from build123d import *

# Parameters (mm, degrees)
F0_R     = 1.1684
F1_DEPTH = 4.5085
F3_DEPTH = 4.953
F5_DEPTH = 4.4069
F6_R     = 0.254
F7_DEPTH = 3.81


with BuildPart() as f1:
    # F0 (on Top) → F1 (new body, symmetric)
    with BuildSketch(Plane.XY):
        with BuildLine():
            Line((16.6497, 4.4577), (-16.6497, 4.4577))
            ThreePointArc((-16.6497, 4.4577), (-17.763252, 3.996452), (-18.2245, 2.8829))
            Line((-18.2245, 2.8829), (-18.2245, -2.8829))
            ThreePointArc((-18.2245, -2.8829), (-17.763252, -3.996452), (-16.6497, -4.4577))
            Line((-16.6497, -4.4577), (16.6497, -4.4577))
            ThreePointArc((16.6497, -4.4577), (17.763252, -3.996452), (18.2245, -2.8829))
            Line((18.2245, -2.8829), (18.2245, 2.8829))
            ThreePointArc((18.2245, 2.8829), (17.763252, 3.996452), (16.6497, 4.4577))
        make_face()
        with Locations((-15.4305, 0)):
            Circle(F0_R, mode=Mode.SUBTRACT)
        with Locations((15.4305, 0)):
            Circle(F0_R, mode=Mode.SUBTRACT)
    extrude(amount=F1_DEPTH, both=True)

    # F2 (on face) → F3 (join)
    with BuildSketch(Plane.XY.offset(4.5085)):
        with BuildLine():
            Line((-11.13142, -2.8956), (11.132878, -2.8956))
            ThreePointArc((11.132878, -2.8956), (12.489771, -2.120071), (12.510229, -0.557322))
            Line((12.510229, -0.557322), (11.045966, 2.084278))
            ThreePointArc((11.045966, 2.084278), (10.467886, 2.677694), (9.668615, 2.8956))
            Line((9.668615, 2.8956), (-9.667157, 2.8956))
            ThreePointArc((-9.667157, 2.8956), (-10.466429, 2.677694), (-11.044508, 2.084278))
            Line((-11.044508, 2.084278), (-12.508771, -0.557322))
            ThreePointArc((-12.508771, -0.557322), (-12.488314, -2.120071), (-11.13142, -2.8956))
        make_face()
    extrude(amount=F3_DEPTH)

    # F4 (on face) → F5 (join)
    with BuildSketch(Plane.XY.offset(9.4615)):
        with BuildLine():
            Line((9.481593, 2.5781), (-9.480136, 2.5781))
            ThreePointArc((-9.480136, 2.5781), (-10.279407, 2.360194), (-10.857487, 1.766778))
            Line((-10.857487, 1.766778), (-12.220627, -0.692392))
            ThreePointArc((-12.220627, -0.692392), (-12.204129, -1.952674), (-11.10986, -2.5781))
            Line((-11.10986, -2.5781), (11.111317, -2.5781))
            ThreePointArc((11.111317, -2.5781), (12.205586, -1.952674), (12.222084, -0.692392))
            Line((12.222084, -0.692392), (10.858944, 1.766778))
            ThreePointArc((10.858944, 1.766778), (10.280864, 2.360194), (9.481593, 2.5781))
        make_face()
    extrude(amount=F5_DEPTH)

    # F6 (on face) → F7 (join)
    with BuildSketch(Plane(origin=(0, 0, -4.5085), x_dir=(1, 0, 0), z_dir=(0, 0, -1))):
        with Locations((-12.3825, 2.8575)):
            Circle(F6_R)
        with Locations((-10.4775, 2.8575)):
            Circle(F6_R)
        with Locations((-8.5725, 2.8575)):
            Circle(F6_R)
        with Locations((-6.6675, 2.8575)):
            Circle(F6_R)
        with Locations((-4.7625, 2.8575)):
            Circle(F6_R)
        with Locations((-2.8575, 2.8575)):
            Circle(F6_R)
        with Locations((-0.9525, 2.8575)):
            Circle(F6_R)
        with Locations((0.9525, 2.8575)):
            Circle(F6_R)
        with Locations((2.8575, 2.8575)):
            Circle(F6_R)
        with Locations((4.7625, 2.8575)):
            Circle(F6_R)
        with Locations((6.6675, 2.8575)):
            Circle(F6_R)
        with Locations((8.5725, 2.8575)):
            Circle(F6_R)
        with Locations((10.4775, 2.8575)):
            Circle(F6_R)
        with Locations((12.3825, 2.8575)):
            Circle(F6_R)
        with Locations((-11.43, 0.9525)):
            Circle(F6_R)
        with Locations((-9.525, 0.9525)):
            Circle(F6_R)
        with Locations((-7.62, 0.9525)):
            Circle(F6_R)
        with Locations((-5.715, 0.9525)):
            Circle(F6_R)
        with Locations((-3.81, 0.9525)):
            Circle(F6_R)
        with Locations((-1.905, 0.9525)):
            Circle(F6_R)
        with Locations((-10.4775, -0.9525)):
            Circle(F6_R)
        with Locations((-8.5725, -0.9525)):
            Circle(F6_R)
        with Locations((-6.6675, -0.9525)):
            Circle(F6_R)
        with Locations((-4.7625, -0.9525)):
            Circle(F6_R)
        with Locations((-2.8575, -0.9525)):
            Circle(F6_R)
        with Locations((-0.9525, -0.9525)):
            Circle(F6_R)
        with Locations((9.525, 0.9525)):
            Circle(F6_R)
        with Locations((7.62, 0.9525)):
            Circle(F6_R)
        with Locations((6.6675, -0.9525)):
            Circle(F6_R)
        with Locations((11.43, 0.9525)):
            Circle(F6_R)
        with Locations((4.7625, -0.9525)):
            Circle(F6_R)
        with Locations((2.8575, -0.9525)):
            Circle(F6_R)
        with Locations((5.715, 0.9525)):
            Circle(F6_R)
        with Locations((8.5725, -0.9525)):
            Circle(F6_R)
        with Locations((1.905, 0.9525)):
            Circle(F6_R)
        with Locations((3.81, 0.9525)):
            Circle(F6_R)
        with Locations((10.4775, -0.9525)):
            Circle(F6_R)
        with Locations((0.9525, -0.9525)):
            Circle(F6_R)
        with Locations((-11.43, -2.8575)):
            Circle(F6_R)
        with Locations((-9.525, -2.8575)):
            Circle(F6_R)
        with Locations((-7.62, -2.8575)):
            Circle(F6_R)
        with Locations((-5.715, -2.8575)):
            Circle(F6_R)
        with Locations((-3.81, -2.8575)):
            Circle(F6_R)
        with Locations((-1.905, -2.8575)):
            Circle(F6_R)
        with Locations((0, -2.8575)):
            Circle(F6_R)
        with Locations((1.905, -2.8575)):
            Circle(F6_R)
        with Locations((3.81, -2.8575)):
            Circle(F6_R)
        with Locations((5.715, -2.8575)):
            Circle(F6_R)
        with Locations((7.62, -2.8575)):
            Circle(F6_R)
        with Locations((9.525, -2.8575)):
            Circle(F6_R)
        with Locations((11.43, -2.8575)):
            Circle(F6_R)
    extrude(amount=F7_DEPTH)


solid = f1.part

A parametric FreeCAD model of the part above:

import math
import FreeCAD as App
import Part
import Sketcher
from FreeCAD import Vector
Q = App.Units.Quantity

doc = App.newDocument("Part")
params = doc.addObject("Spreadsheet::Sheet", "Params")
for row, (alias, value) in enumerate([
    ("sketch1_diameter", "0.092 in"),
    ("sketch1_radius", "0.062 in"),
    ("sketch1_width", "1.311 in"),
    ("sketch1_height", "0.227 in"),
    ("pad1_length", "0.355 in"),
    ("sketch2_radius", "0.062 in"),
    ("pad2_length", "0.195 in"),
    ("sketch3_radius", "0.05 in"),
    ("sketch3_radius2", "0.0619999 in"),
    ("pad3_length", "0.1735 in"),
    ("sketch4_diameter", "0.02 in"),
    ("pad4_length", "0.15 in"),
], start=1):
    params.set(f"A{row}", alias)
    params.set(f"B{row}", "=" + value)
    params.setAlias(f"B{row}", alias)

body = doc.addObject("PartDesign::Body", "Body")

# Sketch on XY plane
sketch1 = body.newObject("Sketcher::SketchObject", "Sketch")
sketch1.AttachmentSupport = (doc.getObject("XY_Plane"), [""])
sketch1.MapMode = "FlatFace"
sketch1.addGeometry([
    Part.LineSegment(Vector(16.6497, 4.4577, 0), Vector(-16.6497, 4.4577, 0)),  # 0
    Part.ArcOfCircle(Part.Circle(Vector(-16.649701, 2.882901, 0), Vector(0, 0, 1), 1.574799), math.radians(89.99997), math.radians(180.00003)),  # 1
    Part.LineSegment(Vector(-18.2245, 2.8829, 0), Vector(-18.2245, -2.8829, 0)),  # 2
    Part.ArcOfCircle(Part.Circle(Vector(-16.649701, -2.882901, 0), Vector(0, 0, 1), 1.574799), math.radians(179.99997), math.radians(270.00003)),  # 3
    Part.LineSegment(Vector(-16.6497, -4.4577, 0), Vector(16.6497, -4.4577, 0)),  # 4
    Part.ArcOfCircle(Part.Circle(Vector(16.649701, -2.882901, 0), Vector(0, 0, 1), 1.574799), math.radians(-90.00003), math.radians(0.00003)),  # 5
    Part.LineSegment(Vector(18.2245, -2.8829, 0), Vector(18.2245, 2.8829, 0)),  # 6
    Part.ArcOfCircle(Part.Circle(Vector(16.649701, 2.882901, 0), Vector(0, 0, 1), 1.574799), math.radians(-0.00003), math.radians(90.00003)),  # 7
    Part.Circle(Vector(-15.4305, 0, 0), Vector(0, 0, 1), 1.1684),  # 8
    Part.Circle(Vector(15.4305, 0, 0), Vector(0, 0, 1), 1.1684),  # 9
], False)
sketch1.addConstraint([
    Sketcher.Constraint("Tangent", 0, 2, 1, 1),
    Sketcher.Constraint("Tangent", 1, 2, 2, 1),
    Sketcher.Constraint("Tangent", 2, 2, 3, 1),
    Sketcher.Constraint("Tangent", 3, 2, 4, 1),
    Sketcher.Constraint("Tangent", 4, 2, 5, 1),
    Sketcher.Constraint("Tangent", 5, 2, 6, 1),
    Sketcher.Constraint("Tangent", 6, 2, 7, 1),
    Sketcher.Constraint("Tangent", 7, 2, 0, 1),
    Sketcher.Constraint("Horizontal", 0),
    Sketcher.Constraint("Vertical", 2),
    Sketcher.Constraint("Horizontal", 4),
    Sketcher.Constraint("Vertical", 6),
    Sketcher.Constraint("Equal", 1, 3),
    Sketcher.Constraint("Equal", 3, 5),
    Sketcher.Constraint("Equal", 5, 7),
    Sketcher.Constraint("Equal", 8, 9),
    Sketcher.Constraint("Symmetric", 1, 3, 5, 3, -1, 1),
    Sketcher.Constraint("Symmetric", 8, 3, 9, 3, -1, 1),
    Sketcher.Constraint("PointOnObject", 8, 3, -1),
    Sketcher.Constraint("Diameter", 8, Q("0.092 in")),
    Sketcher.Constraint("Radius", 1, Q("0.062 in")),
    Sketcher.Constraint("DistanceX", 0, 2, 0, 1, Q("1.311 in")),
    Sketcher.Constraint("DistanceY", 2, 2, 2, 1, Q("0.227 in")),
    Sketcher.Constraint("DistanceX", 1, 2, 8, 3, Q("0.11 in")),
])
sketch1.setExpression("Constraints[19]", "Params.sketch1_diameter")
sketch1.setExpression("Constraints[20]", "Params.sketch1_radius")
sketch1.setExpression("Constraints[21]", "Params.sketch1_width")
sketch1.setExpression("Constraints[22]", "Params.sketch1_height")
pad1 = body.newObject("PartDesign::Pad", "Pad")
pad1.Profile = sketch1
pad1.setExpression("Length", "Params.pad1_length")
pad1.Midplane = True

# Sketch on XY plane
sketch2 = body.newObject("Sketcher::SketchObject", "Sketch001")
sketch2.AttachmentSupport = (doc.getObject("XY_Plane"), [""])
sketch2.MapMode = "FlatFace"
sketch2.AttachmentOffset = App.Placement(Vector(0, 0, 0.1775 * 25.4), App.Rotation())
sketch2.addGeometry([
    Part.LineSegment(Vector(-11.13142, -2.8956, 0), Vector(11.132878, -2.8956, 0)),  # 0
    Part.ArcOfCircle(Part.Circle(Vector(11.132877, -1.320799, 0), Vector(0, 0, 1), 1.574801), math.radians(-89.999958), math.radians(28.999958)),  # 1
    Part.LineSegment(Vector(12.510229, -0.557322, 0), Vector(11.045966, 2.084278, 0)),  # 2
    Part.ArcOfCircle(Part.Circle(Vector(9.668616, 1.320802, 0), Vector(0, 0, 1), 1.574798), math.radians(28.999959), math.radians(90.000025)),  # 3
    Part.LineSegment(Vector(9.668615, 2.8956, 0), Vector(-9.667157, 2.8956, 0)),  # 4
    Part.ArcOfCircle(Part.Circle(Vector(-9.66716, 1.320805, 0), Vector(0, 0, 1), 1.574795), math.radians(89.999908), math.radians(151.000108)),  # 5
    Part.LineSegment(Vector(-11.044508, 2.084278, 0), Vector(-12.508771, -0.557322, 0)),  # 6
    Part.ArcOfCircle(Part.Circle(Vector(-11.13142, -1.3208, 0), Vector(0, 0, 1), 1.5748), math.radians(150.999987), math.radians(270.000013)),  # 7
], False)
sketch2.addConstraint([
    Sketcher.Constraint("Tangent", 0, 2, 1, 1),
    Sketcher.Constraint("Tangent", 1, 2, 2, 1),
    Sketcher.Constraint("Tangent", 2, 2, 3, 1),
    Sketcher.Constraint("Tangent", 3, 2, 4, 1),
    Sketcher.Constraint("Tangent", 4, 2, 5, 1),
    Sketcher.Constraint("Tangent", 5, 2, 6, 1),
    Sketcher.Constraint("Tangent", 6, 2, 7, 1),
    Sketcher.Constraint("Tangent", 7, 2, 0, 1),
    Sketcher.Constraint("Horizontal", 0),
    Sketcher.Constraint("Horizontal", 4),
    Sketcher.Constraint("Equal", 3, 7),
    Sketcher.Constraint("Horizontal", 1, 3, 7, 3),
    Sketcher.Constraint("Horizontal", 2, 2, 5, 2),
    Sketcher.Constraint("Horizontal", 1, 2, 6, 2),
    Sketcher.Constraint("Angle", 2, Q("119.000003 deg")),
    Sketcher.Constraint("Radius", 1, Q("0.062 in")),
    Sketcher.Constraint("DistanceY", 1, 3, -1, 1, Q("0.052 in")),
    Sketcher.Constraint("DistanceY", -1, 1, 3, 3, Q("0.0520001 in")),
    Sketcher.Constraint("DistanceX", 0, 1, 0, 2, Q("22.264298 mm")),
    Sketcher.Constraint("DistanceX", 5, 3, -1, 1, Q("9.66716 mm")),
])
sketch2.setExpression("Constraints[15]", "Params.sketch2_radius")
pad2 = body.newObject("PartDesign::Pad", "Pad001")
pad2.Profile = sketch2
pad2.setExpression("Length", "Params.pad2_length")

# Sketch on XY plane
sketch3 = body.newObject("Sketcher::SketchObject", "Sketch002")
sketch3.AttachmentSupport = (doc.getObject("XY_Plane"), [""])
sketch3.MapMode = "FlatFace"
sketch3.AttachmentOffset = App.Placement(Vector(0, 0, 0.3725 * 25.4), App.Rotation())
sketch3.addGeometry([
    Part.LineSegment(Vector(9.481593, 2.5781, 0), Vector(-9.480136, 2.5781, 0)),  # 0
    Part.ArcOfCircle(Part.Circle(Vector(-9.480137, 1.003302, 0), Vector(0, 0, 1), 1.574798), math.radians(89.999975), math.radians(151.000041)),  # 1
    Part.LineSegment(Vector(-10.857487, 1.766778, 0), Vector(-12.220627, -0.692392, 0)),  # 2
    Part.ArcOfCircle(Part.Circle(Vector(-11.10986, -1.3081, 0), Vector(0, 0, 1), 1.27), math.radians(150.999992), math.radians(270.000012)),  # 3
    Part.LineSegment(Vector(-11.10986, -2.5781, 0), Vector(11.111317, -2.5781, 0)),  # 4
    Part.ArcOfCircle(Part.Circle(Vector(11.111317, -1.3081, 0), Vector(0, 0, 1), 1.27), math.radians(-90.000012), math.radians(29.000008)),  # 5
    Part.LineSegment(Vector(12.222084, -0.692392, 0), Vector(10.858944, 1.766778, 0)),  # 6
    Part.ArcOfCircle(Part.Circle(Vector(9.481594, 1.003302, 0), Vector(0, 0, 1), 1.574798), math.radians(28.999959), math.radians(90.000025)),  # 7
], False)
sketch3.addConstraint([
    Sketcher.Constraint("Tangent", 0, 2, 1, 1),
    Sketcher.Constraint("Tangent", 1, 2, 2, 1),
    Sketcher.Constraint("Tangent", 2, 2, 3, 1),
    Sketcher.Constraint("Tangent", 3, 2, 4, 1),
    Sketcher.Constraint("Tangent", 4, 2, 5, 1),
    Sketcher.Constraint("Tangent", 5, 2, 6, 1),
    Sketcher.Constraint("Tangent", 6, 2, 7, 1),
    Sketcher.Constraint("Tangent", 7, 2, 0, 1),
    Sketcher.Constraint("Horizontal", 0),
    Sketcher.Constraint("Horizontal", 4),
    Sketcher.Constraint("Equal", 3, 5),
    Sketcher.Constraint("Equal", 1, 7),
    Sketcher.Constraint("Horizontal", 2, 2, 5, 2),
    Sketcher.Constraint("Radius", 3, Q("0.05 in")),
    Sketcher.Constraint("Angle", 2, Q("-118.999997 deg")),
    Sketcher.Constraint("Radius", 1, Q("0.0619999 in")),
    Sketcher.Constraint("DistanceY", 3, 3, 1, 3, Q("0.0910001 in")),
    Sketcher.Constraint("DistanceY", -1, 1, 1, 3, Q("0.0395001 in")),
    Sketcher.Constraint("DistanceX", 0, 2, 0, 1, Q("18.961729 mm")),
    Sketcher.Constraint("DistanceX", 3, 3, -1, 1, Q("11.10986 mm")),
])
sketch3.setExpression("Constraints[13]", "Params.sketch3_radius")
sketch3.setExpression("Constraints[15]", "Params.sketch3_radius2")
pad3 = body.newObject("PartDesign::Pad", "Pad002")
pad3.Profile = sketch3
pad3.setExpression("Length", "Params.pad3_length")

# Sketch on XY plane
sketch4 = body.newObject("Sketcher::SketchObject", "Sketch003")
sketch4.AttachmentSupport = (doc.getObject("XY_Plane"), [""])
sketch4.MapMode = "FlatFace"
sketch4.AttachmentOffset = App.Placement(Vector(0, 0, -0.1775 * 25.4), App.Rotation())
sketch4.addGeometry([
    Part.Circle(Vector(-12.3825, -2.8575, 0), Vector(0, 0, 1), 0.254),  # 0
    Part.Circle(Vector(-10.4775, -2.8575, 0), Vector(0, 0, 1), 0.254),  # 1
    Part.Circle(Vector(-8.5725, -2.8575, 0), Vector(0, 0, 1), 0.254),  # 2
    Part.Circle(Vector(-6.6675, -2.8575, 0), Vector(0, 0, 1), 0.254),  # 3
    Part.Circle(Vector(-4.7625, -2.8575, 0), Vector(0, 0, 1), 0.254),  # 4
    Part.Circle(Vector(-2.8575, -2.8575, 0), Vector(0, 0, 1), 0.254),  # 5
    Part.Circle(Vector(-0.9525, -2.8575, 0), Vector(0, 0, 1), 0.254),  # 6
    Part.Circle(Vector(0.9525, -2.8575, 0), Vector(0, 0, 1), 0.254),  # 7
    Part.Circle(Vector(2.8575, -2.8575, 0), Vector(0, 0, 1), 0.254),  # 8
    Part.Circle(Vector(4.7625, -2.8575, 0), Vector(0, 0, 1), 0.254),  # 9
    Part.Circle(Vector(6.6675, -2.8575, 0), Vector(0, 0, 1), 0.254),  # 10
    Part.Circle(Vector(8.5725, -2.8575, 0), Vector(0, 0, 1), 0.254),  # 11
    Part.Circle(Vector(10.4775, -2.8575, 0), Vector(0, 0, 1), 0.254),  # 12
    Part.Circle(Vector(12.3825, -2.8575, 0), Vector(0, 0, 1), 0.254),  # 13
    Part.Circle(Vector(-11.43, -0.9525, 0), Vector(0, 0, 1), 0.254),  # 14
    Part.Circle(Vector(-9.525, -0.9525, 0), Vector(0, 0, 1), 0.254),  # 15
    Part.Circle(Vector(-7.62, -0.9525, 0), Vector(0, 0, 1), 0.254),  # 16
    Part.Circle(Vector(-5.715, -0.9525, 0), Vector(0, 0, 1), 0.254),  # 17
    Part.Circle(Vector(-3.81, -0.9525, 0), Vector(0, 0, 1), 0.254),  # 18
    Part.Circle(Vector(-1.905, -0.9525, 0), Vector(0, 0, 1), 0.254),  # 19
    Part.Circle(Vector(-10.4775, 0.9525, 0), Vector(0, 0, 1), 0.254),  # 20
    Part.Circle(Vector(-8.5725, 0.9525, 0), Vector(0, 0, 1), 0.254),  # 21
    Part.Circle(Vector(-6.6675, 0.9525, 0), Vector(0, 0, 1), 0.254),  # 22
    Part.Circle(Vector(-4.7625, 0.9525, 0), Vector(0, 0, 1), 0.254),  # 23
    Part.Circle(Vector(-2.8575, 0.9525, 0), Vector(0, 0, 1), 0.254),  # 24
    Part.Circle(Vector(-0.9525, 0.9525, 0), Vector(0, 0, 1), 0.254),  # 25
    Part.Circle(Vector(9.525, -0.9525, 0), Vector(0, 0, 1), 0.254),  # 26
    Part.Circle(Vector(7.62, -0.9525, 0), Vector(0, 0, 1), 0.254),  # 27
    Part.Circle(Vector(6.6675, 0.9525, 0), Vector(0, 0, 1), 0.254),  # 28
    Part.Circle(Vector(11.43, -0.9525, 0), Vector(0, 0, 1), 0.254),  # 29
    Part.Circle(Vector(4.7625, 0.9525, 0), Vector(0, 0, 1), 0.254),  # 30
    Part.Circle(Vector(2.8575, 0.9525, 0), Vector(0, 0, 1), 0.254),  # 31
    Part.Circle(Vector(5.715, -0.9525, 0), Vector(0, 0, 1), 0.254),  # 32
    Part.Circle(Vector(8.5725, 0.9525, 0), Vector(0, 0, 1), 0.254),  # 33
    Part.Circle(Vector(1.905, -0.9525, 0), Vector(0, 0, 1), 0.254),  # 34
    Part.Circle(Vector(3.81, -0.9525, 0), Vector(0, 0, 1), 0.254),  # 35
    Part.Circle(Vector(10.4775, 0.9525, 0), Vector(0, 0, 1), 0.254),  # 36
    Part.Circle(Vector(0.9525, 0.9525, 0), Vector(0, 0, 1), 0.254),  # 37
    Part.Circle(Vector(-11.43, 2.8575, 0), Vector(0, 0, 1), 0.254),  # 38
    Part.Circle(Vector(-9.525, 2.8575, 0), Vector(0, 0, 1), 0.254),  # 39
    Part.Circle(Vector(-7.62, 2.8575, 0), Vector(0, 0, 1), 0.254),  # 40
    Part.Circle(Vector(-5.715, 2.8575, 0), Vector(0, 0, 1), 0.254),  # 41
    Part.Circle(Vector(-3.81, 2.8575, 0), Vector(0, 0, 1), 0.254),  # 42
    Part.Circle(Vector(-1.905, 2.8575, 0), Vector(0, 0, 1), 0.254),  # 43
    Part.Circle(Vector(0, 2.8575, 0), Vector(0, 0, 1), 0.254),  # 44
    Part.Circle(Vector(1.905, 2.8575, 0), Vector(0, 0, 1), 0.254),  # 45
    Part.Circle(Vector(3.81, 2.8575, 0), Vector(0, 0, 1), 0.254),  # 46
    Part.Circle(Vector(5.715, 2.8575, 0), Vector(0, 0, 1), 0.254),  # 47
    Part.Circle(Vector(7.62, 2.8575, 0), Vector(0, 0, 1), 0.254),  # 48
    Part.Circle(Vector(9.525, 2.8575, 0), Vector(0, 0, 1), 0.254),  # 49
    Part.Circle(Vector(11.43, 2.8575, 0), Vector(0, 0, 1), 0.254),  # 50
], False)
sketch4.addConstraint([
    Sketcher.Constraint("Equal", 0, 1),
    Sketcher.Constraint("Equal", 1, 2),
    Sketcher.Constraint("Equal", 2, 3),
    Sketcher.Constraint("Equal", 3, 4),
    Sketcher.Constraint("Equal", 4, 5),
    Sketcher.Constraint("Equal", 5, 6),
    Sketcher.Constraint("Equal", 6, 7),
    Sketcher.Constraint("Equal", 7, 8),
    Sketcher.Constraint("Equal", 8, 9),
    Sketcher.Constraint("Equal", 9, 10),
    Sketcher.Constraint("Equal", 10, 11),
    Sketcher.Constraint("Equal", 11, 12),
    Sketcher.Constraint("Equal", 12, 13),
    Sketcher.Constraint("Equal", 13, 14),
    Sketcher.Constraint("Equal", 14, 15),
    Sketcher.Constraint("Equal", 15, 16),
    Sketcher.Constraint("Equal", 16, 17),
    Sketcher.Constraint("Equal", 17, 18),
    Sketcher.Constraint("Equal", 18, 19),
    Sketcher.Constraint("Equal", 19, 20),
    Sketcher.Constraint("Equal", 20, 21),
    Sketcher.Constraint("Equal", 21, 22),
    Sketcher.Constraint("Equal", 22, 23),
    Sketcher.Constraint("Equal", 23, 24),
    Sketcher.Constraint("Equal", 24, 25),
    Sketcher.Constraint("Equal", 25, 26),
    Sketcher.Constraint("Equal", 26, 27),
    Sketcher.Constraint("Equal", 27, 28),
    Sketcher.Constraint("Equal", 28, 29),
    Sketcher.Constraint("Equal", 29, 30),
    Sketcher.Constraint("Equal", 30, 31),
    Sketcher.Constraint("Equal", 31, 32),
    Sketcher.Constraint("Equal", 32, 33),
    Sketcher.Constraint("Equal", 33, 34),
    Sketcher.Constraint("Equal", 34, 35),
    Sketcher.Constraint("Equal", 35, 36),
    Sketcher.Constraint("Equal", 36, 37),
    Sketcher.Constraint("Equal", 37, 38),
    Sketcher.Constraint("Equal", 38, 39),
    Sketcher.Constraint("Equal", 39, 40),
    Sketcher.Constraint("Equal", 40, 41),
    Sketcher.Constraint("Equal", 41, 42),
    Sketcher.Constraint("Equal", 42, 43),
    Sketcher.Constraint("Equal", 43, 44),
    Sketcher.Constraint("Equal", 44, 45),
    Sketcher.Constraint("Equal", 45, 46),
    Sketcher.Constraint("Equal", 46, 47),
    Sketcher.Constraint("Equal", 47, 48),
    Sketcher.Constraint("Equal", 48, 49),
    Sketcher.Constraint("Equal", 49, 50),
    Sketcher.Constraint("Symmetric", 6, 3, 7, 3, -2),
    Sketcher.Constraint("Symmetric", 5, 3, 8, 3, -2),
    Sketcher.Constraint("Symmetric", 4, 3, 9, 3, -2),
    Sketcher.Constraint("Symmetric", 3, 3, 10, 3, -2),
    Sketcher.Constraint("Symmetric", 2, 3, 11, 3, -2),
    Sketcher.Constraint("Symmetric", 1, 3, 12, 3, -2),
    Sketcher.Constraint("Symmetric", 0, 3, 13, 3, -2),
    Sketcher.Constraint("Symmetric", 15, 3, 26, 3, -2),
    Sketcher.Constraint("Symmetric", 16, 3, 27, 3, -2),
    Sketcher.Constraint("Symmetric", 22, 3, 28, 3, -2),
    Sketcher.Constraint("Symmetric", 14, 3, 29, 3, -2),
    Sketcher.Constraint("Symmetric", 23, 3, 30, 3, -2),
    Sketcher.Constraint("Symmetric", 24, 3, 31, 3, -2),
    Sketcher.Constraint("Symmetric", 17, 3, 32, 3, -2),
    Sketcher.Constraint("Symmetric", 21, 3, 33, 3, -2),
    Sketcher.Constraint("Symmetric", 19, 3, 34, 3, -2),
    Sketcher.Constraint("Symmetric", 18, 3, 35, 3, -2),
    Sketcher.Constraint("Symmetric", 20, 3, 36, 3, -2),
    Sketcher.Constraint("Symmetric", 25, 3, 37, 3, -2),
    Sketcher.Constraint("Symmetric", 43, 3, 45, 3, -2),
    Sketcher.Constraint("Symmetric", 42, 3, 46, 3, -2),
    Sketcher.Constraint("Symmetric", 41, 3, 47, 3, -2),
    Sketcher.Constraint("Symmetric", 40, 3, 48, 3, -2),
    Sketcher.Constraint("Symmetric", 39, 3, 49, 3, -2),
    Sketcher.Constraint("Symmetric", 38, 3, 50, 3, -2),
    Sketcher.Constraint("PointOnObject", 44, 3, -2),
    Sketcher.Constraint("Horizontal", 0, 3, 1, 3),
    Sketcher.Constraint("Horizontal", 1, 3, 2, 3),
    Sketcher.Constraint("Horizontal", 2, 3, 3, 3),
    Sketcher.Constraint("Horizontal", 3, 3, 4, 3),
    Sketcher.Constraint("Horizontal", 4, 3, 5, 3),
    Sketcher.Constraint("Horizontal", 5, 3, 6, 3),
    Sketcher.Constraint("Horizontal", 14, 3, 15, 3),
    Sketcher.Constraint("Horizontal", 15, 3, 16, 3),
    Sketcher.Constraint("Horizontal", 16, 3, 17, 3),
    Sketcher.Constraint("Horizontal", 17, 3, 18, 3),
    Sketcher.Constraint("Horizontal", 18, 3, 19, 3),
    Sketcher.Constraint("Horizontal", 20, 3, 21, 3),
    Sketcher.Constraint("Horizontal", 21, 3, 22, 3),
    Sketcher.Constraint("Horizontal", 22, 3, 23, 3),
    Sketcher.Constraint("Horizontal", 23, 3, 24, 3),
    Sketcher.Constraint("Horizontal", 24, 3, 25, 3),
    Sketcher.Constraint("Horizontal", 38, 3, 39, 3),
    Sketcher.Constraint("Horizontal", 39, 3, 40, 3),
    Sketcher.Constraint("Horizontal", 40, 3, 41, 3),
    Sketcher.Constraint("Horizontal", 41, 3, 42, 3),
    Sketcher.Constraint("Horizontal", 42, 3, 43, 3),
    Sketcher.Constraint("Horizontal", 43, 3, 44, 3),
    Sketcher.Constraint("Vertical", 1, 3, 20, 3),
    Sketcher.Constraint("Vertical", 2, 3, 21, 3),
    Sketcher.Constraint("Vertical", 3, 3, 22, 3),
    Sketcher.Constraint("Vertical", 4, 3, 23, 3),
    Sketcher.Constraint("Vertical", 5, 3, 24, 3),
    Sketcher.Constraint("Vertical", 6, 3, 25, 3),
    Sketcher.Constraint("Vertical", 14, 3, 38, 3),
    Sketcher.Constraint("Vertical", 15, 3, 39, 3),
    Sketcher.Constraint("Vertical", 16, 3, 40, 3),
    Sketcher.Constraint("Vertical", 17, 3, 41, 3),
    Sketcher.Constraint("Vertical", 18, 3, 42, 3),
    Sketcher.Constraint("Vertical", 19, 3, 43, 3),
    Sketcher.Constraint("Diameter", 0, Q("0.02 in")),
    Sketcher.Constraint("DistanceX", 16, 3, -1, 1, Q("0.3 in")),
    Sketcher.Constraint("DistanceX", 0, 3, 4, 3, Q("0.3 in")),
    Sketcher.Constraint("DistanceX", 1, 3, 5, 3, Q("0.3 in")),
    Sketcher.Constraint("DistanceX", 2, 3, 6, 3, Q("0.3 in")),
    Sketcher.Constraint("DistanceX", 3, 3, 7, 3, Q("0.3 in")),
    Sketcher.Constraint("DistanceX", 4, 3, 8, 3, Q("0.3 in")),
    Sketcher.Constraint("DistanceX", 14, 3, -1, 1, Q("0.45 in")),
    Sketcher.Constraint("DistanceX", 18, 3, -1, 1, Q("0.15 in")),
    Sketcher.Constraint("DistanceX", 0, 3, 2, 3, Q("0.15 in")),
    Sketcher.Constraint("DistanceY", 1, 3, 20, 3, Q("0.15 in")),
    Sketcher.Constraint("DistanceY", 14, 3, 38, 3, Q("0.15 in")),
    Sketcher.Constraint("DistanceX", 4, 3, -1, 1, Q("0.1875 in")),
    Sketcher.Constraint("DistanceX", 15, 3, -1, 1, Q("0.375 in")),
    Sketcher.Constraint("DistanceX", 17, 3, -1, 1, Q("0.225 in")),
    Sketcher.Constraint("DistanceX", 19, 3, -1, 1, Q("0.075 in")),
    Sketcher.Constraint("DistanceY", 0, 3, 14, 3, Q("0.075 in")),
    Sketcher.Constraint("DistanceY", 0, 3, -1, 1, Q("0.1125 in")),
])
sketch4.setExpression("Constraints[110]", "Params.sketch4_diameter")
pad4 = body.newObject("PartDesign::Pad", "Pad003")
pad4.Profile = sketch4
pad4.setExpression("Length", "Params.pad4_length")
pad4.Reversed = True

doc.recompute()
